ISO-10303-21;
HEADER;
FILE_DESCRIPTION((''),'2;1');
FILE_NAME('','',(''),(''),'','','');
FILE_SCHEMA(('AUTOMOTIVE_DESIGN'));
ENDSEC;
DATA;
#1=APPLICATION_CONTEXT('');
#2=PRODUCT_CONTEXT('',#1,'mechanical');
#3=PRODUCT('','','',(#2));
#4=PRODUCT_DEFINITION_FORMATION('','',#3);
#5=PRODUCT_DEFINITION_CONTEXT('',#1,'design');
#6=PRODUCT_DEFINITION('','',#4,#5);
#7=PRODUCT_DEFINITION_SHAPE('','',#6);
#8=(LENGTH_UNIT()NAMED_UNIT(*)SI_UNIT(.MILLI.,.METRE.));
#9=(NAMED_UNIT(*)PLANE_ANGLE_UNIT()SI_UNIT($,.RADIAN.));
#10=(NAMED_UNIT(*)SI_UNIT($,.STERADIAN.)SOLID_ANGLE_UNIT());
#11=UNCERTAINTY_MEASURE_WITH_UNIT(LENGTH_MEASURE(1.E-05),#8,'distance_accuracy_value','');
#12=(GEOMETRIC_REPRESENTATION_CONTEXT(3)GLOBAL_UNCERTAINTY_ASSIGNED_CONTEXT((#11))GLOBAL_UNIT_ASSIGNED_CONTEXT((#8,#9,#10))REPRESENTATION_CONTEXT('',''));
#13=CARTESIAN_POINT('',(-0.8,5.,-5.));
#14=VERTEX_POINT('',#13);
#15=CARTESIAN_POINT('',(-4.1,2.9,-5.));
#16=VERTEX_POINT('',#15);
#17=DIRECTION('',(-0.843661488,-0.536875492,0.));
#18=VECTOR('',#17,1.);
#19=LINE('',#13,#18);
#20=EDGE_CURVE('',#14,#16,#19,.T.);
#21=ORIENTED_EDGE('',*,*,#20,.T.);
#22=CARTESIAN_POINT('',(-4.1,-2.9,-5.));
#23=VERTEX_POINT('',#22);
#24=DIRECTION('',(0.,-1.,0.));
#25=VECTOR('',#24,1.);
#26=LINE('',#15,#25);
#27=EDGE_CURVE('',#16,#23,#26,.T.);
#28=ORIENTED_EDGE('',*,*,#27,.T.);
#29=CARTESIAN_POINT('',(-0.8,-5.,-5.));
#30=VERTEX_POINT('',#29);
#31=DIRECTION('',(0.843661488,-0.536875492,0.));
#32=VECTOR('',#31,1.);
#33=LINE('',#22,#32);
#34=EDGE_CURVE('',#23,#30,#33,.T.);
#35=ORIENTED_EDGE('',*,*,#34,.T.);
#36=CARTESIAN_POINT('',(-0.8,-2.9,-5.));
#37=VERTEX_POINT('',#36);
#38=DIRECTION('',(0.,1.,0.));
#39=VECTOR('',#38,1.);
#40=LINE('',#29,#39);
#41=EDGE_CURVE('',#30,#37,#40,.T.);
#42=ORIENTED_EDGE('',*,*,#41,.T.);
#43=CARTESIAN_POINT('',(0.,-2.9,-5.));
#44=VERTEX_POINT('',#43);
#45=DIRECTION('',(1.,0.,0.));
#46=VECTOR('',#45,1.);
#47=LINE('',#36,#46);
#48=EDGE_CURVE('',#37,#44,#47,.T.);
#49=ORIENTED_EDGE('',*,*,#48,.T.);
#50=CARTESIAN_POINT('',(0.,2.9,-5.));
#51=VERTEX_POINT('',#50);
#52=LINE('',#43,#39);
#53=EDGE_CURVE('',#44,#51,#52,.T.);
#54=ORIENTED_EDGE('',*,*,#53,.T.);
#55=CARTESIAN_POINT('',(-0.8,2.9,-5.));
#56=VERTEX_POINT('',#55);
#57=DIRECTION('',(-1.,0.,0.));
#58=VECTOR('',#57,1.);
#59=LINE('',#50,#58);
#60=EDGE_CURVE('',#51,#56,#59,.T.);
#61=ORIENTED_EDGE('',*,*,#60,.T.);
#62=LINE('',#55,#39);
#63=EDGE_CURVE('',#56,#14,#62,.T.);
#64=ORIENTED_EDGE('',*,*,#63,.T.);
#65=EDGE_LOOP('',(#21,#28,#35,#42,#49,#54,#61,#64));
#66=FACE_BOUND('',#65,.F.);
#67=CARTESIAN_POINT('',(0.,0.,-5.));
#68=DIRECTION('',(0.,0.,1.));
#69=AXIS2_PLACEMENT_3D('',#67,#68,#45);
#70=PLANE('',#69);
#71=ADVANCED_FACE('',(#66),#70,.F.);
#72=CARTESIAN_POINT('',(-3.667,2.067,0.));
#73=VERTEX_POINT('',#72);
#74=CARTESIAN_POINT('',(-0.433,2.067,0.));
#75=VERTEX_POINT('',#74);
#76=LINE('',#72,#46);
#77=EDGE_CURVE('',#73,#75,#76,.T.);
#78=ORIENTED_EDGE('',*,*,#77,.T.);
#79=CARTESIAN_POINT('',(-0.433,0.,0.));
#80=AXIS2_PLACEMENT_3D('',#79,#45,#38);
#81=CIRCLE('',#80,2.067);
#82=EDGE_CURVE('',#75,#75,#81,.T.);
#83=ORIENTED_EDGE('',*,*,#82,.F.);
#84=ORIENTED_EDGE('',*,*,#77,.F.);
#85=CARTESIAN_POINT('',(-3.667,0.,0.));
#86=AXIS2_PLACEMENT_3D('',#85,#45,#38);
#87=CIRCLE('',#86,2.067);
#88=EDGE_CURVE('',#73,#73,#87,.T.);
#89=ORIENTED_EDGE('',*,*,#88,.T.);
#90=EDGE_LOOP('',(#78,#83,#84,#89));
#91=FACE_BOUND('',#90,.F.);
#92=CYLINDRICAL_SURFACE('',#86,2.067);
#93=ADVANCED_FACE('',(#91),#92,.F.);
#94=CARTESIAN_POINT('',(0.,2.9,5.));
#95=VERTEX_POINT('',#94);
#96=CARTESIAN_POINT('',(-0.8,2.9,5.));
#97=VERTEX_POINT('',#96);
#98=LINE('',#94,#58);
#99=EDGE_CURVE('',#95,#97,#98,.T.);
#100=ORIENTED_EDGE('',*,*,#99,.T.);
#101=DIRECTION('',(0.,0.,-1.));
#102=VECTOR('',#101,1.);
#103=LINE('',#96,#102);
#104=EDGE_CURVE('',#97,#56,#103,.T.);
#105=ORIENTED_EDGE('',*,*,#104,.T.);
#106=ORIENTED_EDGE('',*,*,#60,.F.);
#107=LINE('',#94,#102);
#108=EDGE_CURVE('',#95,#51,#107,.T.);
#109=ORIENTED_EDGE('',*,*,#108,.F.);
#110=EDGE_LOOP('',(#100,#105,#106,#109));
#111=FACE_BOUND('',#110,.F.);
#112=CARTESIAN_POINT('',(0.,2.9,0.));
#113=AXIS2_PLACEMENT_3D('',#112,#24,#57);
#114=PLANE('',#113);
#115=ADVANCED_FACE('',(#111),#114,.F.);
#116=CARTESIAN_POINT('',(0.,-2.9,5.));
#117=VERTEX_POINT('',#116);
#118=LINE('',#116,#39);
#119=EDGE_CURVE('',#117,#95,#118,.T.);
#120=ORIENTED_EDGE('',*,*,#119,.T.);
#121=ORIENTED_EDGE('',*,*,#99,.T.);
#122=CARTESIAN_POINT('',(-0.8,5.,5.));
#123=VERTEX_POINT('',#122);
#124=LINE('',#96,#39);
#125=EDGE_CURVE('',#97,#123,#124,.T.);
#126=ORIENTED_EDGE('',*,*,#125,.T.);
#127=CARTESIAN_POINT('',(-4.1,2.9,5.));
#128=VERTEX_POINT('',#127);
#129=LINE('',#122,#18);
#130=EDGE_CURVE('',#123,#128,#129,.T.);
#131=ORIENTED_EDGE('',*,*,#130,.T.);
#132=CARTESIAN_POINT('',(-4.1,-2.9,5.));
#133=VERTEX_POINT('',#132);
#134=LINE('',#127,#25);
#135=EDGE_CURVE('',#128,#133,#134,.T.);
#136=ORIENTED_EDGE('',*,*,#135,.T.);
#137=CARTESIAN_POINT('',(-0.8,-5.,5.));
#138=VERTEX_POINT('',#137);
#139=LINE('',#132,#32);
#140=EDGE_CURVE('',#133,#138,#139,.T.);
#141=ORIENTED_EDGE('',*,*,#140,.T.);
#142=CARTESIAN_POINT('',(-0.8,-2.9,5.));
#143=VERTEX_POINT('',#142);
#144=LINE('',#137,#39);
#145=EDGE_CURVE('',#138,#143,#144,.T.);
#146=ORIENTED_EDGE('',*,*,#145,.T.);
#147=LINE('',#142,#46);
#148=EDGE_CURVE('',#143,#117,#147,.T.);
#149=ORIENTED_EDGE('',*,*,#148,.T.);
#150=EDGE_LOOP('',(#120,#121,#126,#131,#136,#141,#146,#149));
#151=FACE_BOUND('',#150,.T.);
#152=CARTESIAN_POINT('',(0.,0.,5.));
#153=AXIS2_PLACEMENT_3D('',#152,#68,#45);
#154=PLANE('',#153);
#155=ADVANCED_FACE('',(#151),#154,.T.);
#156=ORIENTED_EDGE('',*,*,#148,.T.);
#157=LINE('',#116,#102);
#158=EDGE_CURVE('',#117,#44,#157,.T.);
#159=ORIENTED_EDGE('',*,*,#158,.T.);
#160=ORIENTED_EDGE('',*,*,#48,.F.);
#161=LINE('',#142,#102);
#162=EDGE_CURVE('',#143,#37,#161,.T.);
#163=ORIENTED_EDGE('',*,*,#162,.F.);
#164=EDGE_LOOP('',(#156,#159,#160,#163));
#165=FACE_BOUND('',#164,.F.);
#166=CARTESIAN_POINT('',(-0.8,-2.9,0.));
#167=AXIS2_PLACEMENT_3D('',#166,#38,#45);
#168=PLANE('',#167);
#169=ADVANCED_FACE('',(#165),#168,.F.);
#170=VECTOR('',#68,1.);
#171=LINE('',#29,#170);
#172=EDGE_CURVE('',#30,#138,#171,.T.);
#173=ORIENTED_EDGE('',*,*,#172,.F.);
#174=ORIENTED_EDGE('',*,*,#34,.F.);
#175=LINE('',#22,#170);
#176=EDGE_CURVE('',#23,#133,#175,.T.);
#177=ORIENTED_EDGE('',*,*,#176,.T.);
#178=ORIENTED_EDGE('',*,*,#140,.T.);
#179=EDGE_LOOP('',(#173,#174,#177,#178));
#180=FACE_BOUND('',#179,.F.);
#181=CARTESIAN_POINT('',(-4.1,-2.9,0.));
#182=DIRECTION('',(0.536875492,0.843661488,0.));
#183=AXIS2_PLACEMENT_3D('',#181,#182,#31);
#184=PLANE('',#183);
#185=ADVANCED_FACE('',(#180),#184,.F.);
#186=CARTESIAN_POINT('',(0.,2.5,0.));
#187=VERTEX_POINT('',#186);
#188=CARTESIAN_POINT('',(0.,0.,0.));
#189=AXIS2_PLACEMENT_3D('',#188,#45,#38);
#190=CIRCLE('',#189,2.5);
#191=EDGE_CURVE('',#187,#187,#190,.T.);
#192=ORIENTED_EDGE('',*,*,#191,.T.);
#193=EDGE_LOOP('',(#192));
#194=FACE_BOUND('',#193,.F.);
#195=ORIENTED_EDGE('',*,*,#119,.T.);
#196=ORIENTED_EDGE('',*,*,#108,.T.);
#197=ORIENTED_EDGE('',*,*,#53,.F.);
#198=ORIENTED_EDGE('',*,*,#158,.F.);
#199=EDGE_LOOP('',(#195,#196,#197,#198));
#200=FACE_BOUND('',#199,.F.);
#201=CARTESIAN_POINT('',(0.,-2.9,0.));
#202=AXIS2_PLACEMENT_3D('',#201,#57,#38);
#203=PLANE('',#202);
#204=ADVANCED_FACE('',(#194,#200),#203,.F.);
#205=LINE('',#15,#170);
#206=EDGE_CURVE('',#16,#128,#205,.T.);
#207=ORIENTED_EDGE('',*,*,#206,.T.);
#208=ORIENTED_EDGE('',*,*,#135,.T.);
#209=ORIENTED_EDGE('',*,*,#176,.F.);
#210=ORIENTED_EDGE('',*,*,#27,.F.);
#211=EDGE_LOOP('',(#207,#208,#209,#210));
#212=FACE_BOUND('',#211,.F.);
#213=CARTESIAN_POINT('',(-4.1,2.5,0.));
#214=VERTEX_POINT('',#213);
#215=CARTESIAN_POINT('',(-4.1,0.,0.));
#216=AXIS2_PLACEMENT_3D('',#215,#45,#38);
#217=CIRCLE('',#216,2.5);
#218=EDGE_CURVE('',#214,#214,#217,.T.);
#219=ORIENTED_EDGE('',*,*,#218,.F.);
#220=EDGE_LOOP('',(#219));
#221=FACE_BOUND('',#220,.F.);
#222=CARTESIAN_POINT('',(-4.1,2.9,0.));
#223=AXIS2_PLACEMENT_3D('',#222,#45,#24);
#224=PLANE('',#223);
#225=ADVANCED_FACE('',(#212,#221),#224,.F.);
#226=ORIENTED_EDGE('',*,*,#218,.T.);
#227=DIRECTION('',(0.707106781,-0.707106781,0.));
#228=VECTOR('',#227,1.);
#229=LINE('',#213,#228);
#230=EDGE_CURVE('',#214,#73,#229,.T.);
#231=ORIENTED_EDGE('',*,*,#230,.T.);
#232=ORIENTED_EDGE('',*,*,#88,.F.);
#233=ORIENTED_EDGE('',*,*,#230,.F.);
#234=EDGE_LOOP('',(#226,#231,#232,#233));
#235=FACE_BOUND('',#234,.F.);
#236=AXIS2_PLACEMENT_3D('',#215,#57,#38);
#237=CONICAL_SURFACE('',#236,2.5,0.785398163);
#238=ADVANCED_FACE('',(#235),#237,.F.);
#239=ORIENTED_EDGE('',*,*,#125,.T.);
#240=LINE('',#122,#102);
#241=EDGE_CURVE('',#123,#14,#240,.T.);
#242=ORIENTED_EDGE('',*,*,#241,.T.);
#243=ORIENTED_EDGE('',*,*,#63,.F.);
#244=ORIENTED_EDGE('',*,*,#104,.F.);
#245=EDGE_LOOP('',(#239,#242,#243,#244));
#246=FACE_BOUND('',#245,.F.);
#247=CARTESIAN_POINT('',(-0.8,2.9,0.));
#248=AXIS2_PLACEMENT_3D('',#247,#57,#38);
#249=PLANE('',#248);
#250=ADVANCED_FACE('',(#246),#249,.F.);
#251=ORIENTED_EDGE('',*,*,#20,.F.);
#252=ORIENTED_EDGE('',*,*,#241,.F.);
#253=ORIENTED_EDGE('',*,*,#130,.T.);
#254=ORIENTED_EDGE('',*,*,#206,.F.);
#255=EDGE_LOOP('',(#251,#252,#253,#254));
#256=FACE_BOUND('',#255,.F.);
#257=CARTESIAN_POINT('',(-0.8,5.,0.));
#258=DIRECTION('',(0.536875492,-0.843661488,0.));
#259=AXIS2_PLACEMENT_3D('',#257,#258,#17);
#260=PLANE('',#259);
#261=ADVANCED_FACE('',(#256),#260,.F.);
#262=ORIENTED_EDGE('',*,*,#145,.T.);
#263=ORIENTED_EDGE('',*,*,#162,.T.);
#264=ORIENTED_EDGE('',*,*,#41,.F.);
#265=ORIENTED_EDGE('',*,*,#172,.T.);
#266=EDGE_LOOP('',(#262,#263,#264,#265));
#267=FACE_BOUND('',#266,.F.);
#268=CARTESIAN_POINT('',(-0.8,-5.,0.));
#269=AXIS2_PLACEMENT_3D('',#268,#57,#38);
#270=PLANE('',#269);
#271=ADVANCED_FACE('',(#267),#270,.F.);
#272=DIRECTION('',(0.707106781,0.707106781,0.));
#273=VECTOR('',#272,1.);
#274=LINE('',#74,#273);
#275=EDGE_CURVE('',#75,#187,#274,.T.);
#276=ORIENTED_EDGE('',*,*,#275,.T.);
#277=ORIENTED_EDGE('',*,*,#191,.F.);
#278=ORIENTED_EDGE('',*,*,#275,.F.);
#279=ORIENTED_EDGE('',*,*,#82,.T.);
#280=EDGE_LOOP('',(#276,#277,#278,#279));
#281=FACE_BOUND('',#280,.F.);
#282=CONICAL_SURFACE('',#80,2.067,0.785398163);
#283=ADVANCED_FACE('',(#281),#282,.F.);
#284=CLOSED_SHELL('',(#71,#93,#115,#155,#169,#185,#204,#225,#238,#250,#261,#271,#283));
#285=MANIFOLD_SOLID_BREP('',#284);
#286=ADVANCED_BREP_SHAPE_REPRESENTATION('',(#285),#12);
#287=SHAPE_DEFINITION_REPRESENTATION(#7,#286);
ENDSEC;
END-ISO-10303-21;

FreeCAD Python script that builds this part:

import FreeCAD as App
import Part
import Sketcher
from FreeCAD import Vector

doc = App.newDocument("Part")
params = doc.addObject("Spreadsheet::Sheet", "Params")
for row, (alias, value) in enumerate([
    ("sketch1_width", "0.8 mm"),
    ("sketch1_height", "5.8 mm"),
    ("sketch1_height2", "2.1 mm"),
    ("pad1_length", "10 mm"),
    ("sketch2_width", "4.1 mm"),
    ("sketch2_height", "2.5 mm"),
    ("groove_angle", "360 deg"),
], start=1):
    params.set(f"A{row}", alias)
    params.set(f"B{row}", "=" + value)
    params.setAlias(f"B{row}", alias)

body = doc.addObject("PartDesign::Body", "Body")

sketch1 = doc.addObject("Sketcher::SketchObject", "Sketch")
body.addObject(sketch1)
sketch1.AttachmentSupport = (doc.XY_Plane, [""])
sketch1.MapMode = "FlatFace"
sketch1.addGeometry(Part.LineSegment(Vector(-0.8, 5, 0), Vector(-4.1, 2.9, 0)), False)
sketch1.addGeometry(Part.LineSegment(Vector(-4.1, 2.9, 0), Vector(-4.1, -2.9, 0)), False)
sketch1.addGeometry(Part.LineSegment(Vector(-4.1, -2.9, 0), Vector(-0.8, -5, 0)), False)
sketch1.addGeometry(Part.LineSegment(Vector(-0.8, -5, 0), Vector(-0.8, -2.9, 0)), False)
sketch1.addGeometry(Part.LineSegment(Vector(-0.8, -2.9, 0), Vector(0, -2.9, 0)), False)
sketch1.addGeometry(Part.LineSegment(Vector(0, -2.9, 0), Vector(0, 2.9, 0)), False)
sketch1.addGeometry(Part.LineSegment(Vector(0, 2.9, 0), Vector(-0.8, 2.9, 0)), False)
sketch1.addGeometry(Part.LineSegment(Vector(-0.8, 2.9, 0), Vector(-0.8, 5, 0)), False)
sketch1.addConstraint(Sketcher.Constraint("Coincident", 0, 2, 1, 1))
sketch1.addConstraint(Sketcher.Constraint("Coincident", 1, 2, 2, 1))
sketch1.addConstraint(Sketcher.Constraint("Coincident", 2, 2, 3, 1))
sketch1.addConstraint(Sketcher.Constraint("Coincident", 3, 2, 4, 1))
sketch1.addConstraint(Sketcher.Constraint("Coincident", 4, 2, 5, 1))
sketch1.addConstraint(Sketcher.Constraint("Coincident", 5, 2, 6, 1))
sketch1.addConstraint(Sketcher.Constraint("Coincident", 6, 2, 7, 1))
sketch1.addConstraint(Sketcher.Constraint("Coincident", 7, 2, 0, 1))
sketch1.addConstraint(Sketcher.Constraint("Vertical", 1))
sketch1.addConstraint(Sketcher.Constraint("Vertical", 3))
sketch1.addConstraint(Sketcher.Constraint("Horizontal", 4))
sketch1.addConstraint(Sketcher.Constraint("Vertical", 5))
sketch1.addConstraint(Sketcher.Constraint("Horizontal", 6))
sketch1.addConstraint(Sketcher.Constraint("Vertical", 7))
sketch1.addConstraint(Sketcher.Constraint("Symmetric", 4, 2, 5, 2, -1, 1))
sketch1.addConstraint(Sketcher.Constraint("Symmetric", 2, 2, 7, 2, -1))
sketch1.addConstraint(Sketcher.Constraint("Horizontal", 1, 2, 3, 2))
sketch1.addConstraint(Sketcher.Constraint("Horizontal", 0, 2, 5, 2))
sketch1.addConstraint(Sketcher.Constraint("DistanceX", 4, 1, 4, 2, 0.8))
sketch1.addConstraint(Sketcher.Constraint("DistanceY", 1, 2, 1, 1, 5.8))
sketch1.addConstraint(Sketcher.Constraint("DistanceY", 3, 1, 3, 2, 2.1))
sketch1.addConstraint(Sketcher.Constraint("DistanceX", 0, 2, -1, 1, 4.1))
sketch1.setExpression("Constraints[18]", "Params.sketch1_width")
sketch1.setExpression("Constraints[19]", "Params.sketch1_height")
sketch1.setExpression("Constraints[20]", "Params.sketch1_height2")
pad1 = doc.addObject("PartDesign::Pad", "Pad")
body.addObject(pad1)
pad1.Profile = sketch1
pad1.setExpression("Length", "Params.pad1_length")
pad1.Midplane = True

sketch2 = doc.addObject("Sketcher::SketchObject", "Sketch001")
body.addObject(sketch2)
sketch2.AttachmentSupport = (doc.XY_Plane, [""])
sketch2.MapMode = "FlatFace"
sketch2.addGeometry(Part.LineSegment(Vector(-4.1, 0, 0), Vector(0, 0, 0)), False)
sketch2.addGeometry(Part.LineSegment(Vector(0, 0, 0), Vector(0, 2.5, 0)), False)
sketch2.addGeometry(Part.LineSegment(Vector(0, 2.5, 0), Vector(-0.4, 2.1, 0)), False)
sketch2.addGeometry(Part.LineSegment(Vector(-0.4, 2.1, 0), Vector(-3.7, 2.1, 0)), False)
sketch2.addGeometry(Part.LineSegment(Vector(-3.7, 2.1, 0), Vector(-4.1, 2.5, 0)), False)
sketch2.addGeometry(Part.LineSegment(Vector(-4.1, 2.5, 0), Vector(-4.1, 0, 0)), False)
sketch2.addConstraint(Sketcher.Constraint("Coincident", 0, 2, 1, 1))
sketch2.addConstraint(Sketcher.Constraint("Coincident", 1, 2, 2, 1))
sketch2.addConstraint(Sketcher.Constraint("Coincident", 2, 2, 3, 1))
sketch2.addConstraint(Sketcher.Constraint("Coincident", 3, 2, 4, 1))
sketch2.addConstraint(Sketcher.Constraint("Coincident", 4, 2, 5, 1))
sketch2.addConstraint(Sketcher.Constraint("Coincident", 5, 2, 0, 1))
sketch2.addConstraint(Sketcher.Constraint("Horizontal", 0))
sketch2.addConstraint(Sketcher.Constraint("Vertical", 1))
sketch2.addConstraint(Sketcher.Constraint("Horizontal", 3))
sketch2.addConstraint(Sketcher.Constraint("Vertical", 5))
sketch2.addConstraint(Sketcher.Constraint("Coincident", 0, 2, -1, 1))
sketch2.addConstraint(Sketcher.Constraint("Perpendicular", 2, 4))
sketch2.addConstraint(Sketcher.Constraint("Horizontal", 1, 2, 4, 2))
sketch2.addConstraint(Sketcher.Constraint("Equal", 2, 4))
sketch2.addConstraint(Sketcher.Constraint("DistanceX", 0, 1, 0, 2, 4.1))
sketch2.addConstraint(Sketcher.Constraint("DistanceY", 1, 1, 1, 2, 2.5))
sketch2.addConstraint(Sketcher.Constraint("DistanceX", 3, 2, 3, 1, 3.234))
sketch2.setExpression("Constraints[14]", "Params.sketch2_width")
sketch2.setExpression("Constraints[15]", "Params.sketch2_height")
groove = doc.addObject("PartDesign::Groove", "Groove")
body.addObject(groove)
groove.Profile = sketch2
groove.ReferenceAxis = (sketch2, ["H_Axis"])
groove.setExpression("Angle", "Params.groove_angle")

doc.recompute()
